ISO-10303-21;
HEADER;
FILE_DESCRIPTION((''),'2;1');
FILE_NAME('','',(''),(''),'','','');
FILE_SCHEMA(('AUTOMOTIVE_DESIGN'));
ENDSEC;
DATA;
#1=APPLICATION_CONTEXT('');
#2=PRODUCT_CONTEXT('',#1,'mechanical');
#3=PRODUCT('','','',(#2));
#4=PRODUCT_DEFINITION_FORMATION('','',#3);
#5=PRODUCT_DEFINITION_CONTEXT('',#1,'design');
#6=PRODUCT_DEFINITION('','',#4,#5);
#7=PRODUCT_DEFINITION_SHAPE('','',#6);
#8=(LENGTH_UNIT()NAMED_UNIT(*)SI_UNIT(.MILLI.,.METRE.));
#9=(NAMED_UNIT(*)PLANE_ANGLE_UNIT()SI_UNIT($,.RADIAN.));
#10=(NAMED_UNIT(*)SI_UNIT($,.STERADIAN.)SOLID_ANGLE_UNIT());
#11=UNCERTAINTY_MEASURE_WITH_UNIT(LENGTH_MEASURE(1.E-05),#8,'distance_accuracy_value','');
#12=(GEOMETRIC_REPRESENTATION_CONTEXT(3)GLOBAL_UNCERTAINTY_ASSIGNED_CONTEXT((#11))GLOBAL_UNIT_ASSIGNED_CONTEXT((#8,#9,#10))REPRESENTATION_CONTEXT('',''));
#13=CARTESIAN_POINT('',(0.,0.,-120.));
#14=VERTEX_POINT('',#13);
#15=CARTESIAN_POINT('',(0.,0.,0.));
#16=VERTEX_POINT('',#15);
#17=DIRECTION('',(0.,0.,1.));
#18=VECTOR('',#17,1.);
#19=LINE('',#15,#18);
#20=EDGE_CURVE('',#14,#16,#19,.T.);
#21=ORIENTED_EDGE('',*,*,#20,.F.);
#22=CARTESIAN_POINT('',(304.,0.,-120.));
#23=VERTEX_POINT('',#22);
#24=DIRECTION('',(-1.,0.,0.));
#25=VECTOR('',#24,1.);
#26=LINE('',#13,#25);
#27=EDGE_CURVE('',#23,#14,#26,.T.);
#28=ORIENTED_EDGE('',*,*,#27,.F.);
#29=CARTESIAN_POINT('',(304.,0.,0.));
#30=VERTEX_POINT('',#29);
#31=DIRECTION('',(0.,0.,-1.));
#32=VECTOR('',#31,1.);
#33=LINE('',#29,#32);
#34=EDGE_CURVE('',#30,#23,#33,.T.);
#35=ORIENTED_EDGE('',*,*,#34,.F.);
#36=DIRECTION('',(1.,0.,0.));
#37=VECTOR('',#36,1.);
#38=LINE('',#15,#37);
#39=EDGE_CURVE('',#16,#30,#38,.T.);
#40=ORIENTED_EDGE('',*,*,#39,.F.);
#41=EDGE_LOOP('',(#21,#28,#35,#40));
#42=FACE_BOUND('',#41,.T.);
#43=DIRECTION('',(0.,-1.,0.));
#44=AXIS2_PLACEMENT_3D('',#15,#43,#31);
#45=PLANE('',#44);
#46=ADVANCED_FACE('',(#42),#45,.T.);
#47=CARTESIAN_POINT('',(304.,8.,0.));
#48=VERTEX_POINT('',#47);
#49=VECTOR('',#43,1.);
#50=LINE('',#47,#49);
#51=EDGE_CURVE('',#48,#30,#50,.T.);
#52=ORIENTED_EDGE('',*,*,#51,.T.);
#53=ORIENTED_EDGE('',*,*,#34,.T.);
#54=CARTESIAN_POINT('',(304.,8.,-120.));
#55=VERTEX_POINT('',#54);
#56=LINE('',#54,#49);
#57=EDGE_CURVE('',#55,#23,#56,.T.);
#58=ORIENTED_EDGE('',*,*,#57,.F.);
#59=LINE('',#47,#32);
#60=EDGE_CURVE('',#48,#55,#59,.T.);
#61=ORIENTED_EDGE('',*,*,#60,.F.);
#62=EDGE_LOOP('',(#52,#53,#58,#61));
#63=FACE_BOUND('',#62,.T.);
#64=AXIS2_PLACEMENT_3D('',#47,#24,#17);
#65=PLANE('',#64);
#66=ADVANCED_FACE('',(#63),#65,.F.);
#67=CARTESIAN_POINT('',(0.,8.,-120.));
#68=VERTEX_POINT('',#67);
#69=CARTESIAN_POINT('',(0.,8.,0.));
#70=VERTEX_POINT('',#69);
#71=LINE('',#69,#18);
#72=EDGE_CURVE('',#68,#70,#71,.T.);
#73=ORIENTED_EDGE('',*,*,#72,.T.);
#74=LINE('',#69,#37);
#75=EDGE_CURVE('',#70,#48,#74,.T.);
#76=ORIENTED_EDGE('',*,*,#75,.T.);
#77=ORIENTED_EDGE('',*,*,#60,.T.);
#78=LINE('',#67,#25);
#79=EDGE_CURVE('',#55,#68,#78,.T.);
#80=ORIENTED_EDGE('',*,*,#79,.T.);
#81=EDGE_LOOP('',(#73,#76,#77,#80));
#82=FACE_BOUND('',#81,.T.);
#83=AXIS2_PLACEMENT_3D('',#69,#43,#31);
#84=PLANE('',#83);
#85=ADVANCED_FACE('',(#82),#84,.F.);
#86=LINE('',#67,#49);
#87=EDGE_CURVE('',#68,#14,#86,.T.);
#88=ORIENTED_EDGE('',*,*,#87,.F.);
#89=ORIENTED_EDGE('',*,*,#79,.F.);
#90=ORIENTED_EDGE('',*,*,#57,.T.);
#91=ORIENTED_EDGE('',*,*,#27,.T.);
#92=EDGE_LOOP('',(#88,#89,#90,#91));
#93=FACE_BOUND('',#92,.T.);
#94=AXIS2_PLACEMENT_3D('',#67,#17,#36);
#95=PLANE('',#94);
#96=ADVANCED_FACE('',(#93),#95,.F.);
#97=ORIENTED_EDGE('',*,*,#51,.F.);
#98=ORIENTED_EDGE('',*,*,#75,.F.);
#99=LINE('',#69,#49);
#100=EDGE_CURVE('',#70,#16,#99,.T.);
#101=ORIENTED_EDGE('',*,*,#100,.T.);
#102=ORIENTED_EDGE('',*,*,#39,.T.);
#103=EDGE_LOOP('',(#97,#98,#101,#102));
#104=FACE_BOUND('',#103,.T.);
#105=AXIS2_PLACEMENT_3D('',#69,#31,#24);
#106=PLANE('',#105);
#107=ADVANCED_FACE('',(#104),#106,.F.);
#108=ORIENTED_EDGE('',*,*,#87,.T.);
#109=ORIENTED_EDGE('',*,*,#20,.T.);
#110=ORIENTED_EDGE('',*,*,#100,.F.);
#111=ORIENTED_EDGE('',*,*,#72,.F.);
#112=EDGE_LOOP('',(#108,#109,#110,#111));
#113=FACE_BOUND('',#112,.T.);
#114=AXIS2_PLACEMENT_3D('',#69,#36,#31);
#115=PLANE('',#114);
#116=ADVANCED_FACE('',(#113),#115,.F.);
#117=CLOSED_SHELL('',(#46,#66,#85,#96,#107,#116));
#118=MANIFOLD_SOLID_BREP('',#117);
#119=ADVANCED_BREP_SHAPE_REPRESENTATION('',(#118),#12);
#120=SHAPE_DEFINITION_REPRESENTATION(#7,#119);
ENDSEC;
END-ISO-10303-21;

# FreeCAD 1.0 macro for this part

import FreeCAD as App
import Part
import Sketcher
Q = App.Units.Quantity

doc = App.newDocument("Part")
body = doc.addObject("PartDesign::Body", "Body")

sketch1 = body.newObject("Sketcher::SketchObject", "Sketch")
sketch1.AttachmentSupport = (doc.getObject("XZ_Plane"), [""])
sketch1.MapMode = "FlatFace"
sketch1.addGeometry([
    Part.LineSegment(App.Vector(0, -120, 0), App.Vector(0, 0, 0)),
    Part.LineSegment(App.Vector(0, 0, 0), App.Vector(304, 0, 0)),
    Part.LineSegment(App.Vector(304, 0, 0), App.Vector(304, -120, 0)),
    Part.LineSegment(App.Vector(304, -120, 0), App.Vector(0, -120, 0)),
], False)
sketch1.addConstraint([
    Sketcher.Constraint("Coincident", 0, 2, 1, 1),
    Sketcher.Constraint("Coincident", 1, 2, 2, 1),
    Sketcher.Constraint("Coincident", 2, 2, 3, 1),
    Sketcher.Constraint("Coincident", 3, 2, 0, 1),
    Sketcher.Constraint("Vertical", 0),
    Sketcher.Constraint("Horizontal", 1),
    Sketcher.Constraint("Vertical", 2),
    Sketcher.Constraint("Horizontal", 3),
    Sketcher.Constraint("Coincident", 0, 2, -1, 1),
    Sketcher.Constraint("DistanceX", 1, 1, 1, 2, Q("304 mm")),
    Sketcher.Constraint("DistanceY", 0, 1, 0, 2, Q("120 mm")),
])
pad1 = body.newObject("PartDesign::Pad", "Pad")
pad1.Profile = sketch1
pad1.Length = 8
pad1.Reversed = True

doc.recompute()
